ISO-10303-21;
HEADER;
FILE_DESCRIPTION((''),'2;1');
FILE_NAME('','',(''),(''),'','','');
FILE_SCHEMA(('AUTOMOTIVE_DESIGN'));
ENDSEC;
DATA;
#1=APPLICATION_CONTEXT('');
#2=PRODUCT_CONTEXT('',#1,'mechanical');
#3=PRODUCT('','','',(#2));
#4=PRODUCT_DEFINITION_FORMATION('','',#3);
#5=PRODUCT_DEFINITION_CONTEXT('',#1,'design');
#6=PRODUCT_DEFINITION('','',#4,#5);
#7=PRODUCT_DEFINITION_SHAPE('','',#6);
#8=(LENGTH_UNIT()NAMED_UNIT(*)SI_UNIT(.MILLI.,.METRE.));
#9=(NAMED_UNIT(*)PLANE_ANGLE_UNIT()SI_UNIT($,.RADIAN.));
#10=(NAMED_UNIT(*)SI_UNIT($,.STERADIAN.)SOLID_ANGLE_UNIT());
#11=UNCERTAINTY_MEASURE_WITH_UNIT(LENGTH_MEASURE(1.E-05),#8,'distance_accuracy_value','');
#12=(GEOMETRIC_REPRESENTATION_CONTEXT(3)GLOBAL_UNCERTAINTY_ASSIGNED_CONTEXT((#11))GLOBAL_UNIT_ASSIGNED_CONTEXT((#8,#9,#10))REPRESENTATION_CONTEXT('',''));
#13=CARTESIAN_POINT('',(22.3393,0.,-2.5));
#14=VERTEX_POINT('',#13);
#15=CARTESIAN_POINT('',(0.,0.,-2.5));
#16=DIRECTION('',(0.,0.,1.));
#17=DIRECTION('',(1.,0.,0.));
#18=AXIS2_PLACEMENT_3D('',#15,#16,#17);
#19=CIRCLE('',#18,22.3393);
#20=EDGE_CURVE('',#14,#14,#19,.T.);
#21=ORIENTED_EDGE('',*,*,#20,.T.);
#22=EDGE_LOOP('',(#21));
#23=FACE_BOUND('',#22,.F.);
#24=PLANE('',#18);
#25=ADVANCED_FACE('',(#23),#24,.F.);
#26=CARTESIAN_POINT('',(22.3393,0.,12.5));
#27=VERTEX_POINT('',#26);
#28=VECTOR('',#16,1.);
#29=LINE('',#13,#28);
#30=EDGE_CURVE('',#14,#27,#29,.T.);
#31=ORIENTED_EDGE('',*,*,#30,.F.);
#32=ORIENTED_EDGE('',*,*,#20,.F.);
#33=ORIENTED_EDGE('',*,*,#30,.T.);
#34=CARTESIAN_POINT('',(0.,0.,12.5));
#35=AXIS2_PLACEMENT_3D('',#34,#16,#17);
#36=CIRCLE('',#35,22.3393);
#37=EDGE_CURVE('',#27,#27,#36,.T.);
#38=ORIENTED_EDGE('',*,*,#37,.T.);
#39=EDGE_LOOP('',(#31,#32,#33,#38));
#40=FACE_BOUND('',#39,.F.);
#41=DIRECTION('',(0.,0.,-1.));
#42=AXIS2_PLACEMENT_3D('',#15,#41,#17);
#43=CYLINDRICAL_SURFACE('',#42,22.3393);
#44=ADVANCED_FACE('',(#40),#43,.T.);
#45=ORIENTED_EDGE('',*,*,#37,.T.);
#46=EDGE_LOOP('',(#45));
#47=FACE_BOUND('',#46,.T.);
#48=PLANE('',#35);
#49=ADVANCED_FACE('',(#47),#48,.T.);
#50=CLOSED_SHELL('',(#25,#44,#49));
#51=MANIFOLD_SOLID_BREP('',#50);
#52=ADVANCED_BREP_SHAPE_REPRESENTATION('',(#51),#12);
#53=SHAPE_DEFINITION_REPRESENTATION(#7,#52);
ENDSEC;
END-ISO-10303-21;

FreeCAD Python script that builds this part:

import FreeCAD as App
import Part
import Sketcher
Q = App.Units.Quantity

doc = App.newDocument("Part")
body = doc.addObject("PartDesign::Body", "Body")

# Sketch on XY plane
sketch1 = body.newObject("Sketcher::SketchObject", "Sketch")
sketch1.AttachmentSupport = (doc.getObject("XY_Plane"), [""])
sketch1.MapMode = "FlatFace"
sketch1.AttachmentOffset = App.Placement(App.Vector(0, 0, -2.5), App.Rotation())
sketch1.addGeometry(Part.Circle(App.Vector(0, 0, 0), App.Vector(0, 0, 1), 22), False)
sketch1.addConstraint([
    Sketcher.Constraint("Coincident", 0, 3, -1, 1),
    Sketcher.Constraint("Diameter", 0, Q("44.6786 mm")),
])
pad1 = body.newObject("PartDesign::Pad", "Pad")
pad1.Profile = sketch1
pad1.Length = 15

doc.recompute()
